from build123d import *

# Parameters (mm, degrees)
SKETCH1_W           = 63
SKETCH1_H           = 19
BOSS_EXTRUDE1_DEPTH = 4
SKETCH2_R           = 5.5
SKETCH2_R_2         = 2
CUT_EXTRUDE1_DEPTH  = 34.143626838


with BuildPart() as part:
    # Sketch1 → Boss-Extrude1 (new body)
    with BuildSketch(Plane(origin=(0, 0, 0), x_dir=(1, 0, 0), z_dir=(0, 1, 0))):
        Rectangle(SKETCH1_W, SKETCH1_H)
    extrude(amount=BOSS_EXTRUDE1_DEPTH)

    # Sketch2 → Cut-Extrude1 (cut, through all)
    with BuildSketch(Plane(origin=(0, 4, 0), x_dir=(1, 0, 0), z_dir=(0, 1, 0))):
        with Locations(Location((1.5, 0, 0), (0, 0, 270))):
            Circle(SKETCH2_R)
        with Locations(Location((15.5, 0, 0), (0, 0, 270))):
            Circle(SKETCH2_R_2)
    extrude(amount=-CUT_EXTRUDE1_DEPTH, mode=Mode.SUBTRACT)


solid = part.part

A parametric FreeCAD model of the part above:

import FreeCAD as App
import Part
import Sketcher


def add_polygon(sketch, points):
    """Adds a closed chain of lines whose ends are joined by coincident constraints."""
    first, n = sketch.GeometryCount, len(points)
    for a, b in zip(points, points[1:] + points[:1]):
        sketch.addGeometry(Part.LineSegment(App.Vector(*a, 0), App.Vector(*b, 0)), False)
    for i in range(n):
        sketch.addConstraint(Sketcher.Constraint("Coincident", first + i, 2, first + (i + 1) % n, 1))

doc = App.newDocument("Part")
params = doc.addObject("Spreadsheet::Sheet", "Params")
for row, (alias, value) in enumerate([
    ("sketch1_width", "63 mm"),
    ("sketch1_height", "19 mm"),
    ("pad1_length", "4 mm"),
    ("sketch2_diameter", "11 mm"),
    ("sketch2_diameter2", "4 mm"),
], start=1):
    params.set(f"A{row}", alias)
    params.set(f"B{row}", "=" + value)
    params.setAlias(f"B{row}", alias)

body = doc.addObject("PartDesign::Body", "Body")

# Sketch on XZ plane
sketch1 = body.newObject("Sketcher::SketchObject", "Sketch")
sketch1.AttachmentSupport = (doc.getObject("XZ_Plane"), [""])
sketch1.MapMode = "FlatFace"
add_polygon(sketch1, [(-32, -10), (-32, 10), (32, 10), (32, -10)])  # lines 0-3
sketch1.addConstraint([
    Sketcher.Constraint("Vertical", 0),
    Sketcher.Constraint("Horizontal", 1),
    Sketcher.Constraint("Vertical", 2),
    Sketcher.Constraint("Horizontal", 3),
    Sketcher.Constraint("Symmetric", 0, 2, 2, 2, -1, 1),
    Sketcher.Constraint("DistanceX", 1, 1, 1, 2, 63.0),
    Sketcher.Constraint("DistanceY", 0, 1, 0, 2, 19.0),
])
sketch1.setExpression("Constraints[9]", "Params.sketch1_width")
sketch1.setExpression("Constraints[10]", "Params.sketch1_height")
pad1 = body.newObject("PartDesign::Pad", "Pad")
pad1.Profile = sketch1
pad1.setExpression("Length", "Params.pad1_length")
pad1.Reversed = True

# Sketch on XZ plane
sketch2 = body.newObject("Sketcher::SketchObject", "Sketch001")
sketch2.AttachmentSupport = (doc.getObject("XZ_Plane"), [""])
sketch2.MapMode = "FlatFace"
sketch2.AttachmentOffset = App.Placement(App.Vector(0, 0, -4), App.Rotation())
sketch2.addGeometry([
    Part.Circle(App.Vector(1.5, 0, 0), App.Vector(0, 0, 1), 5.5),
    Part.Circle(App.Vector(15.5, 0, 0), App.Vector(0, 0, 1), 2),
], False)
sketch2.addConstraint([
    Sketcher.Constraint("PointOnObject", 0, 3, -1),
    Sketcher.Constraint("PointOnObject", 1, 3, -1),
    Sketcher.Constraint("Diameter", 0, 11.0),
    Sketcher.Constraint("Diameter", 1, 4.0),
    Sketcher.Constraint("DistanceX", 0, 3, 1, 3, 14.0),
    Sketcher.Constraint("DistanceX", -1, 1, 0, 3, 1.5),
])
sketch2.setExpression("Constraints[2]", "Params.sketch2_diameter")
sketch2.setExpression("Constraints[3]", "Params.sketch2_diameter2")
pocket1 = body.newObject("PartDesign::Pocket", "Pocket")
pocket1.Profile = sketch2
pocket1.Type = "ThroughAll"
pocket1.Reversed = True

doc.recompute()
